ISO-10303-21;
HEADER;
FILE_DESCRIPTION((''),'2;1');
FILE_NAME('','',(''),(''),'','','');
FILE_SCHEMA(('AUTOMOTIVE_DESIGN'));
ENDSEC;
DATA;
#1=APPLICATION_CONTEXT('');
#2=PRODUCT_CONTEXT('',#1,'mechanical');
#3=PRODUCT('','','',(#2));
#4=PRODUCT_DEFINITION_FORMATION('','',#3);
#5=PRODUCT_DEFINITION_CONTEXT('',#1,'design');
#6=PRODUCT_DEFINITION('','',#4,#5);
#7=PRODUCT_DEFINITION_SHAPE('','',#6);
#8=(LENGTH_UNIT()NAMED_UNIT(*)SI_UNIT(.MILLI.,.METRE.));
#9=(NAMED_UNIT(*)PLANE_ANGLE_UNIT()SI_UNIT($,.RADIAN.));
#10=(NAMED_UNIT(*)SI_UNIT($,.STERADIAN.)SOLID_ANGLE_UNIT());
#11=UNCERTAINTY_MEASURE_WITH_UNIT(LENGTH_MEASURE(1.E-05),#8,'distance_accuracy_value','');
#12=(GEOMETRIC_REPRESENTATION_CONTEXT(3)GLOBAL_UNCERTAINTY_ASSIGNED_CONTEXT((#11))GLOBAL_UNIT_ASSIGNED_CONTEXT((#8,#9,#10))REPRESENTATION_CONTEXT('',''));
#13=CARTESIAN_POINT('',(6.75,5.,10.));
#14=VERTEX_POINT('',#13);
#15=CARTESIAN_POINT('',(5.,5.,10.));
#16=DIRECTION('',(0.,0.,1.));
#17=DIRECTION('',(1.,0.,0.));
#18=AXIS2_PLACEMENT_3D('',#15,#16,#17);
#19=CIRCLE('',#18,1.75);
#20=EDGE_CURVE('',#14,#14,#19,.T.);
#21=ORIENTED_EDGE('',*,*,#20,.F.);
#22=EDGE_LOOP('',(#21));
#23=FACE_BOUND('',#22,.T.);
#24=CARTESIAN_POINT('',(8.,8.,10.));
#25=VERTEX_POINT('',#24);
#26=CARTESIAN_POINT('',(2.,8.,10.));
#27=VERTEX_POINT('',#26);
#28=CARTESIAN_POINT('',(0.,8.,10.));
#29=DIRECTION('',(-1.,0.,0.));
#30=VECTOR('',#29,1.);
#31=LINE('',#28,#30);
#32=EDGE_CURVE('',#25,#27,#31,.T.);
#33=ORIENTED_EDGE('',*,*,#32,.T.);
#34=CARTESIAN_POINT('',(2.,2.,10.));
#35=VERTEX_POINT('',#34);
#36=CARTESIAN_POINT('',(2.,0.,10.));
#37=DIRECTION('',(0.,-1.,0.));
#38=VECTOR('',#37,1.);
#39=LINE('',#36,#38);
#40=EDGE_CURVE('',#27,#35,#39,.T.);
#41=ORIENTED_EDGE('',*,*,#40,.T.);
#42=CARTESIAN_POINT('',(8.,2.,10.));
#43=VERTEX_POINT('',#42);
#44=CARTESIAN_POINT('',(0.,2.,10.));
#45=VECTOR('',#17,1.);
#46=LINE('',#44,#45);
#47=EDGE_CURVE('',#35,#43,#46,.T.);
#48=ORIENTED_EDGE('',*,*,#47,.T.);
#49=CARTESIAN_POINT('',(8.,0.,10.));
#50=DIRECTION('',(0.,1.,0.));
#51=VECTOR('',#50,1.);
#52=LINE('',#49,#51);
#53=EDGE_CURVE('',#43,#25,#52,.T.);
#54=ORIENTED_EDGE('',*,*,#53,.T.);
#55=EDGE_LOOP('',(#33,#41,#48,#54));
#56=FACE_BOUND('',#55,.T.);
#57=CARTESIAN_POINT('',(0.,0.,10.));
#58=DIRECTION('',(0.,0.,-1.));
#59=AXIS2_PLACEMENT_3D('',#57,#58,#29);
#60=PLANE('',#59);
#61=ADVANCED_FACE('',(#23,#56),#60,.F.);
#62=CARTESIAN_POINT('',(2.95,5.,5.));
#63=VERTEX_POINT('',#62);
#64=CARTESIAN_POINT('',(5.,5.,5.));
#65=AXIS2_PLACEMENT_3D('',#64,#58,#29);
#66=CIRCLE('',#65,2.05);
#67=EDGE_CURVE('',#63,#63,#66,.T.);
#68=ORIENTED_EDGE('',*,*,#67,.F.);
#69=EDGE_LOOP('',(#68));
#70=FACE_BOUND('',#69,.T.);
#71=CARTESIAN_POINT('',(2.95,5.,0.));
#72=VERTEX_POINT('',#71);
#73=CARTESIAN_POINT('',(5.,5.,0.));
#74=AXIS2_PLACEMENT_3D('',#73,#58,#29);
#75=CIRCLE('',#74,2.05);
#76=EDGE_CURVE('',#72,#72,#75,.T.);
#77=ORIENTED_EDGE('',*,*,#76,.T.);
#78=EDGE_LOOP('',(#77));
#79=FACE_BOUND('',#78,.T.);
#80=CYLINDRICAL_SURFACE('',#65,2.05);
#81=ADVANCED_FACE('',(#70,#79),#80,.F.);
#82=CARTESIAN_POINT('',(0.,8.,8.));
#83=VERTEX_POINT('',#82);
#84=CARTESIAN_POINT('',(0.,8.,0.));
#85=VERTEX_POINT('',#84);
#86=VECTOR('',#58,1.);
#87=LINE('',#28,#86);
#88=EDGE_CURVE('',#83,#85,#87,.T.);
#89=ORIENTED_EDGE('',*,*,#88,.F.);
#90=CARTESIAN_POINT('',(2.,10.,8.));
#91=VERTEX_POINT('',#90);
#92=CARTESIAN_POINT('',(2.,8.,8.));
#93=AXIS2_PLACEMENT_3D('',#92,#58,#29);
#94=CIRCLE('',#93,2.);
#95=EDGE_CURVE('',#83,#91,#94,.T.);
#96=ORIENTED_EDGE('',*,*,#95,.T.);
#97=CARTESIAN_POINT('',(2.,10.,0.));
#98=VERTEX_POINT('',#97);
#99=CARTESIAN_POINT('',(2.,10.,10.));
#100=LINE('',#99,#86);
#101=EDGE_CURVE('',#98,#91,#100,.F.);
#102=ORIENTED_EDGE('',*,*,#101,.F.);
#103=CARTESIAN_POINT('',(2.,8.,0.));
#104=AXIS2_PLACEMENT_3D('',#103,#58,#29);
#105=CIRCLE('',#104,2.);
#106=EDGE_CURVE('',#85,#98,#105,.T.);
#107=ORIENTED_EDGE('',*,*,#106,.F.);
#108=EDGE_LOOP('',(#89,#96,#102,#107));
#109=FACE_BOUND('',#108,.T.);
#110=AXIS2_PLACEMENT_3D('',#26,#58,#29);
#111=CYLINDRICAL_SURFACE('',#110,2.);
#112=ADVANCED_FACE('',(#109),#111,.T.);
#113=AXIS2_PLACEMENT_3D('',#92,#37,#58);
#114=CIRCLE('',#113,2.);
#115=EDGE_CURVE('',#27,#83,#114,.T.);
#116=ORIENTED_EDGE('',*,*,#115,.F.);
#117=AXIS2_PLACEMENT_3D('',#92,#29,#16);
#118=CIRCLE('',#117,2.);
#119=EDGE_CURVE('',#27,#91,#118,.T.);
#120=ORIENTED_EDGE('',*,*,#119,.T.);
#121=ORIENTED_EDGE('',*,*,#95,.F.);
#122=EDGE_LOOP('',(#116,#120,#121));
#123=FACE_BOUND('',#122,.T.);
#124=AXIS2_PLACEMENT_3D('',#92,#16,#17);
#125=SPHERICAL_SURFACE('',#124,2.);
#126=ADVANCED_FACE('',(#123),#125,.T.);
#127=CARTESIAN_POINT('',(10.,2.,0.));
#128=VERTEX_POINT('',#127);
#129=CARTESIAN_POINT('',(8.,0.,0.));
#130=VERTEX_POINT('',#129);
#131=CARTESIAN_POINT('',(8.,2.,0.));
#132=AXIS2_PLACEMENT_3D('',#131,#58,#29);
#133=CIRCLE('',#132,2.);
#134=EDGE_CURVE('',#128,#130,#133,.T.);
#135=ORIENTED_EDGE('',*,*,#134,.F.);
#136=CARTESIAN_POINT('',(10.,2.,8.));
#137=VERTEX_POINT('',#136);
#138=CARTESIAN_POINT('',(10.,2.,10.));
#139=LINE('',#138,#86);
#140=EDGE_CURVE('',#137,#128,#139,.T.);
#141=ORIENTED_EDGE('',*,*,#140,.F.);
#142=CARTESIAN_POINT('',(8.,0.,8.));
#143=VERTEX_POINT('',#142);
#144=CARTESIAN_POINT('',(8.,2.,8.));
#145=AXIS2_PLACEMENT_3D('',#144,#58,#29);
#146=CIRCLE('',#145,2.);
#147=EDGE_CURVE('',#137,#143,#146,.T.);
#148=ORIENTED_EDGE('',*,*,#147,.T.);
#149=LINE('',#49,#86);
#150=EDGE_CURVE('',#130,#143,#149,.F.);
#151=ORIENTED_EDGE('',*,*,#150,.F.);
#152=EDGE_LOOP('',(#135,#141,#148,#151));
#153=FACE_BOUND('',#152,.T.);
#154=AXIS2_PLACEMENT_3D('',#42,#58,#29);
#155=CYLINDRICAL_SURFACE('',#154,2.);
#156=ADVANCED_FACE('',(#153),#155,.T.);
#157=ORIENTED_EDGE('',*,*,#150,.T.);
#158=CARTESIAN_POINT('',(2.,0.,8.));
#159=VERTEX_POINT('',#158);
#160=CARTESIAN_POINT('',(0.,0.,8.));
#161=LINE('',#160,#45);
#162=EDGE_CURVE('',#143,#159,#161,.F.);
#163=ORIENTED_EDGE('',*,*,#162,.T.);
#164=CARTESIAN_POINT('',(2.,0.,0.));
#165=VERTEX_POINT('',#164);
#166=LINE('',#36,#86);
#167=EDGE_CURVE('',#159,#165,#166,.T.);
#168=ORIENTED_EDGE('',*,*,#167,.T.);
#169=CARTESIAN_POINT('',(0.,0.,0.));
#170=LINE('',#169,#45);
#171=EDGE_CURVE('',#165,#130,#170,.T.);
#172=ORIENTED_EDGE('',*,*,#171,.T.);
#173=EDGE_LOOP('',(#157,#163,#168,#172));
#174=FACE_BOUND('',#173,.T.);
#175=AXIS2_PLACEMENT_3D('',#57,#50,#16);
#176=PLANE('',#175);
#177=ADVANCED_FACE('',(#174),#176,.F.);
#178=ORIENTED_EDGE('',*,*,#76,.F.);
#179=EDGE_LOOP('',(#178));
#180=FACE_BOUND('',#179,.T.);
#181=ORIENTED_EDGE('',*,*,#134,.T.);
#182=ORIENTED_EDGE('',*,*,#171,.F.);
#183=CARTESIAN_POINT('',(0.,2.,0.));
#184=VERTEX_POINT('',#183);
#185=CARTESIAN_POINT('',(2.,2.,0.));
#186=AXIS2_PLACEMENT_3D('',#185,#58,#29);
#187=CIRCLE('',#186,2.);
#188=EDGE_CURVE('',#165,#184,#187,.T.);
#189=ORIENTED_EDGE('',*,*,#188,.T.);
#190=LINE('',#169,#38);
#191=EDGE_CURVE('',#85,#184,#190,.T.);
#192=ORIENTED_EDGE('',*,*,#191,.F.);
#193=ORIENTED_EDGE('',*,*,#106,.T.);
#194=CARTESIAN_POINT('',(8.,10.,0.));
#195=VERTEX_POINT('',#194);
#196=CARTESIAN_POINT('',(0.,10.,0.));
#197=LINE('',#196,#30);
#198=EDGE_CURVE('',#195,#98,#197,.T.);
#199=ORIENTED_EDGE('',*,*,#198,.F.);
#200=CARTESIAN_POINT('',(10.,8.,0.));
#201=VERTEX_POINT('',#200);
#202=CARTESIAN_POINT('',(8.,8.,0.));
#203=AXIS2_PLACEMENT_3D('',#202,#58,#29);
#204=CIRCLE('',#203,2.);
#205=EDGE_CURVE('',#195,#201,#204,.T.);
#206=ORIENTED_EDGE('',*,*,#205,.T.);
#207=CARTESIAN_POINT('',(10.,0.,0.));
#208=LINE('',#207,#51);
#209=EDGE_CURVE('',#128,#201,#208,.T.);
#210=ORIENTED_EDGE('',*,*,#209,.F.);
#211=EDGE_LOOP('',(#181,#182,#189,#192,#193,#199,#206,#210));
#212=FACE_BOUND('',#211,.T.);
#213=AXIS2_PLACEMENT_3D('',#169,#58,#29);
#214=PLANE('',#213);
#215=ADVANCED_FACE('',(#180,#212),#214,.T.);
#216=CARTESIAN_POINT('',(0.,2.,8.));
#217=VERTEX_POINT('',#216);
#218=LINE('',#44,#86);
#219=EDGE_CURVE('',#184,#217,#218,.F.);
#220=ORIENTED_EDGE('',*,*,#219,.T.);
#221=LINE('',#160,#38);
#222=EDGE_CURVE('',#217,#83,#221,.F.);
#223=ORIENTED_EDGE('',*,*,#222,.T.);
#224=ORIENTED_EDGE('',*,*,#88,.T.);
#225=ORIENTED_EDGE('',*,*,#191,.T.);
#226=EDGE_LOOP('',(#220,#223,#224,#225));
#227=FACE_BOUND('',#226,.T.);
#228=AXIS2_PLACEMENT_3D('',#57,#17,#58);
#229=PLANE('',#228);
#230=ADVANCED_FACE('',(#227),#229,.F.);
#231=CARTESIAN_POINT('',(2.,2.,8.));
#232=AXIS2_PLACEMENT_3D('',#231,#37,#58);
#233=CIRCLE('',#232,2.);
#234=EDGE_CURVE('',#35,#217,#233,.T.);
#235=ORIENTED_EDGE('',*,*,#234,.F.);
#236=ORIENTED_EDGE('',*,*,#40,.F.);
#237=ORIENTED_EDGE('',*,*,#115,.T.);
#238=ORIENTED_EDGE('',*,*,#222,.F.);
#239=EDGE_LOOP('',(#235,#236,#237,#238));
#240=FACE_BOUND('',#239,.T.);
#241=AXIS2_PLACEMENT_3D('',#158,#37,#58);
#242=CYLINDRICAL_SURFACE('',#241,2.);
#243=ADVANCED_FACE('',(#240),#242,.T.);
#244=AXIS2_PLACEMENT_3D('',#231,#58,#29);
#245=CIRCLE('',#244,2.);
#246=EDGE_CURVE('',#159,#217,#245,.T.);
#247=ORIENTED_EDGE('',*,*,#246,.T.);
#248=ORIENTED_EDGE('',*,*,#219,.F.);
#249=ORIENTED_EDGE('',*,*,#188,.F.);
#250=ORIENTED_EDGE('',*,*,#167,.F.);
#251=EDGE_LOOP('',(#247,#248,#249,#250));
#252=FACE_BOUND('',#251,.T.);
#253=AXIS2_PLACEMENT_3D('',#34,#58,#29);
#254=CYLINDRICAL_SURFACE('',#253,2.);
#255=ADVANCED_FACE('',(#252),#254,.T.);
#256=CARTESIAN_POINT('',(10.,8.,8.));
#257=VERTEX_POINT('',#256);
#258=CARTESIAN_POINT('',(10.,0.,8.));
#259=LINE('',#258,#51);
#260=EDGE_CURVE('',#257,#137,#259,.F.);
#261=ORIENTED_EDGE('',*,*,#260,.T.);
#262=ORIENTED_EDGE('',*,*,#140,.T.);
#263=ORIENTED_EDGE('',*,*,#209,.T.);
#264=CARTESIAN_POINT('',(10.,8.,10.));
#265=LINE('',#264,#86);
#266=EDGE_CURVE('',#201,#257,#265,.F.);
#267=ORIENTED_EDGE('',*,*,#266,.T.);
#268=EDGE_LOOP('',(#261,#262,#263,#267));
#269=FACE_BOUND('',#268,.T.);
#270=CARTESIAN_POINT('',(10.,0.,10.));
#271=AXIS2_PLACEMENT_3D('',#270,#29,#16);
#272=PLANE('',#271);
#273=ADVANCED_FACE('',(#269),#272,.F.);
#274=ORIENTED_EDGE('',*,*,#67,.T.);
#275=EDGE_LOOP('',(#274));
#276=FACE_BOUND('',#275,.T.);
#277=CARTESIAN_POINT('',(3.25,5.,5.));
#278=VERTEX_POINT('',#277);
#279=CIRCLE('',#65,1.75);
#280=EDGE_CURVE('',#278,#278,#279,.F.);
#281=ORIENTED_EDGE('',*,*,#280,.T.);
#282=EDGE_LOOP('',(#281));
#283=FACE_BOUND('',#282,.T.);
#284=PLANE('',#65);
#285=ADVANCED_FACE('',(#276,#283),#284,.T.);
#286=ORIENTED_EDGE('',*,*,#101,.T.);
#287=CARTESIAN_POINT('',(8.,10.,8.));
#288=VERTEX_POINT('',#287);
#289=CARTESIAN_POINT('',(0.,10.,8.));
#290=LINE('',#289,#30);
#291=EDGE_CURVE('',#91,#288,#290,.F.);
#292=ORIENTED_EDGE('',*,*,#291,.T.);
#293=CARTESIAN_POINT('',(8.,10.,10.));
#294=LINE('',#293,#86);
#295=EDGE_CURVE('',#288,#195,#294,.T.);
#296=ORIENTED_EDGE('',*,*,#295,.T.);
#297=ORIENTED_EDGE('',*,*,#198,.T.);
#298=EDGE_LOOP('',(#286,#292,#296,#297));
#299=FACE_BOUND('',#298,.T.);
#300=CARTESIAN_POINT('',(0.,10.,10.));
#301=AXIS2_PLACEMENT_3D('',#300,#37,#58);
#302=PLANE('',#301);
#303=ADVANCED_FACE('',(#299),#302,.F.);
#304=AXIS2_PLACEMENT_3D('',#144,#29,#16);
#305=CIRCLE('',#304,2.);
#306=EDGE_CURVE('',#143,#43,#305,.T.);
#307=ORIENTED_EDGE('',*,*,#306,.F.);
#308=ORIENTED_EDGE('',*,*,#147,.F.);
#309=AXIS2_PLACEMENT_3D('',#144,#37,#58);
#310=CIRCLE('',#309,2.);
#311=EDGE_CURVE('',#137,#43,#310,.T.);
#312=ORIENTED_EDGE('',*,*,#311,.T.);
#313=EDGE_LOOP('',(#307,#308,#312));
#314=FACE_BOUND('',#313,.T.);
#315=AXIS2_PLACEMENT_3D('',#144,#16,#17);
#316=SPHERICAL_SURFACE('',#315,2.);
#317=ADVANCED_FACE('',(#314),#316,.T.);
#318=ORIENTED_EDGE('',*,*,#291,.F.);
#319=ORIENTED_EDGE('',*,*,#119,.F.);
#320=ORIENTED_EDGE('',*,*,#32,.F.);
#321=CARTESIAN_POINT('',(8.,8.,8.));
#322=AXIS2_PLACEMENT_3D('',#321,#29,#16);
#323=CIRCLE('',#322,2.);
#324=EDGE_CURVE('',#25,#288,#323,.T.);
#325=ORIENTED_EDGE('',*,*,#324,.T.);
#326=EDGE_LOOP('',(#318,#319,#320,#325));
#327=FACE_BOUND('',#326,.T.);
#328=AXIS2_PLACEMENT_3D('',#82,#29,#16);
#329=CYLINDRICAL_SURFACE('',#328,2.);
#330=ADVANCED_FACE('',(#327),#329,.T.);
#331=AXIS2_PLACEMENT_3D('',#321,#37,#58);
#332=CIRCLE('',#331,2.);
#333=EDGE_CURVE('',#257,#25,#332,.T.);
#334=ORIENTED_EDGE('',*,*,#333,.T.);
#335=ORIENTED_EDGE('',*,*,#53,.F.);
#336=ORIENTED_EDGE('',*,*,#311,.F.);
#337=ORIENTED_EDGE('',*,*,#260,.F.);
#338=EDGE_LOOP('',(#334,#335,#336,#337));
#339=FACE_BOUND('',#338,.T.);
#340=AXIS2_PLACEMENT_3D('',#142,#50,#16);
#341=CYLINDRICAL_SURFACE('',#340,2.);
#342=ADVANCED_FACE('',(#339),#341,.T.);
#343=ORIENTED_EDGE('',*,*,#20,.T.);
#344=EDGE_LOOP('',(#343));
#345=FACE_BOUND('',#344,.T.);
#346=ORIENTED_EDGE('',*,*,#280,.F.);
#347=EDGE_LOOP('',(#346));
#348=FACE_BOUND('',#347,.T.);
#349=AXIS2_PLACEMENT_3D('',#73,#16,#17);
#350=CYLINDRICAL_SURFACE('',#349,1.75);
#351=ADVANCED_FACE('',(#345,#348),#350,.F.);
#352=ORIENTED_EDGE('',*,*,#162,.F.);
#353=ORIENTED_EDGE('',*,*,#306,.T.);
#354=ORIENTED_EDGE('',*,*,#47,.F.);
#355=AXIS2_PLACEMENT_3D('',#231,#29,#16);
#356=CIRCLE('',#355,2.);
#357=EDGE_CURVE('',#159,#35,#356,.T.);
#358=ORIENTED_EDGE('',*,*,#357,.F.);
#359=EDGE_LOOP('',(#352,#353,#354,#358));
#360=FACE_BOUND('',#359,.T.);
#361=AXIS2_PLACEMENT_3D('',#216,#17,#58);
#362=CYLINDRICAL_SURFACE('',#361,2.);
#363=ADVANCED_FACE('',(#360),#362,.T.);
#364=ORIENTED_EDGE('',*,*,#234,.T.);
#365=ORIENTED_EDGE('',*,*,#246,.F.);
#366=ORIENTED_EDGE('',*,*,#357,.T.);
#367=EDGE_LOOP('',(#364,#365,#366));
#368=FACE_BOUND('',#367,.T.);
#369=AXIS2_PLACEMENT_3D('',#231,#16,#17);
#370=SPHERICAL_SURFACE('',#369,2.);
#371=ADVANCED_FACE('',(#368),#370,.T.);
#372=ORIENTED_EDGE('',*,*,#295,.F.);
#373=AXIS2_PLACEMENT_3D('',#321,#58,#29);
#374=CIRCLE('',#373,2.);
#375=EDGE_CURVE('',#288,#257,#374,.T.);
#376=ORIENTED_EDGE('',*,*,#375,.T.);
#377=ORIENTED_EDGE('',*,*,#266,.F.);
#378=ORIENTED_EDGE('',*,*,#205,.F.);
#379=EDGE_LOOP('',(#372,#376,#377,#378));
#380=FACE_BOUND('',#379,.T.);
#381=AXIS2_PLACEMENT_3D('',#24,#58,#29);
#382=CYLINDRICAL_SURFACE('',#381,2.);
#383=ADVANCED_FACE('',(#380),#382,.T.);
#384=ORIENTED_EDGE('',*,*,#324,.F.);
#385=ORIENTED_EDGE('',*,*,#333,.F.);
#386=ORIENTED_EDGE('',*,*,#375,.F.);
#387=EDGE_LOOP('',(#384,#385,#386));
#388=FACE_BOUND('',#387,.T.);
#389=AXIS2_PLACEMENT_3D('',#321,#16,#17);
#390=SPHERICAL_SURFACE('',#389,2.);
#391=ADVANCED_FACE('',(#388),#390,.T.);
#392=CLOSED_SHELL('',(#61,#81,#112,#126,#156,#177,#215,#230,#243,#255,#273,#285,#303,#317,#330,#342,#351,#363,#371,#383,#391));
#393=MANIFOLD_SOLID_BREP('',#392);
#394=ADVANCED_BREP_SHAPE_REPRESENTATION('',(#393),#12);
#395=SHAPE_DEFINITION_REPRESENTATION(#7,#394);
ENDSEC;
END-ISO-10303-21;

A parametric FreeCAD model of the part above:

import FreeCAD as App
import Part
import Sketcher
from FreeCAD import Vector
Q = App.Units.Quantity


def edges_at(feature, points):
    """Names of the edges that pass closest to the given points."""
    edges = feature.Shape.Edges
    near = lambda p: min(range(len(edges)), key=lambda i: edges[i].distToShape(Part.Vertex(*p))[0])
    return sorted({f"Edge{near(p) + 1}" for p in points})

doc = App.newDocument("Part")
params = doc.addObject("Spreadsheet::Sheet", "Params")
for row, (alias, value) in enumerate([
    ("sketch1_width", "10 mm"),
    ("pad1_length", "10 mm"),
    ("sketch2_diameter", "3.5 mm"),
    ("sketch3_diameter", "4.1 mm"),
    ("pocket2_length", "5 mm"),
    ("fillet_radius", "2 mm"),
    ("fillet2_radius", "2 mm"),
], start=1):
    params.set(f"A{row}", alias)
    params.set(f"B{row}", "=" + value)
    params.setAlias(f"B{row}", alias)

body = doc.addObject("PartDesign::Body", "Body")

sketch1 = body.newObject("Sketcher::SketchObject", "Sketch")
sketch1.AttachmentSupport = (doc.getObject("XY_Plane"), [""])
sketch1.MapMode = "FlatFace"
sketch1.addGeometry([
    Part.LineSegment(Vector(0, 10, 0), Vector(0, 0, 0)),
    Part.LineSegment(Vector(0, 0, 0), Vector(10, 0, 0)),
    Part.LineSegment(Vector(10, 0, 0), Vector(10, 10, 0)),
    Part.LineSegment(Vector(10, 10, 0), Vector(0, 10, 0)),
], False)
sketch1.addConstraint([
    Sketcher.Constraint("Coincident", 0, 2, 1, 1),
    Sketcher.Constraint("Coincident", 1, 2, 2, 1),
    Sketcher.Constraint("Coincident", 2, 2, 3, 1),
    Sketcher.Constraint("Coincident", 3, 2, 0, 1),
    Sketcher.Constraint("Vertical", 0),
    Sketcher.Constraint("Horizontal", 1),
    Sketcher.Constraint("Vertical", 2),
    Sketcher.Constraint("Horizontal", 3),
    Sketcher.Constraint("Coincident", 0, 2, -1, 1),
    Sketcher.Constraint("Equal", 3, 0),
    Sketcher.Constraint("DistanceX", 1, 1, 1, 2, Q("10 mm")),
])
sketch1.setExpression("Constraints[10]", "Params.sketch1_width")
pad1 = body.newObject("PartDesign::Pad", "Pad")
pad1.Profile = sketch1
pad1.setExpression("Length", "Params.pad1_length")

sketch2 = body.newObject("Sketcher::SketchObject", "Sketch001")
sketch2.AttachmentSupport = (doc.getObject("XY_Plane"), [""])
sketch2.MapMode = "FlatFace"
sketch2.AttachmentOffset = App.Placement(Vector(0, 0, 10), App.Rotation())
sketch2.addGeometry(Part.Circle(Vector(5, 5, 0), Vector(0, 0, 1), 1.8), False)
sketch2.addConstraint([
    Sketcher.Constraint("Diameter", 0, Q("3.5 mm")),
    Sketcher.Constraint("DistanceX", -1, 1, 0, 3, Q("5 mm")),
    Sketcher.Constraint("DistanceY", -1, 1, 0, 3, Q("5 mm")),
])
sketch2.setExpression("Constraints[0]", "Params.sketch2_diameter")
pocket1 = body.newObject("PartDesign::Pocket", "Pocket")
pocket1.Profile = sketch2
pocket1.Type = "ThroughAll"

sketch3 = body.newObject("Sketcher::SketchObject", "Sketch002")
sketch3.AttachmentSupport = (doc.getObject("XY_Plane"), [""])
sketch3.MapMode = "FlatFace"
sketch3.addGeometry(Part.Circle(Vector(5, 5, 0), Vector(0, 0, 1), 2), False)
sketch3.addConstraint([
    Sketcher.Constraint("Diameter", 0, Q("4.1 mm")),
    Sketcher.Constraint("DistanceX", -1, 1, 0, 3, Q("5 mm")),
    Sketcher.Constraint("DistanceY", -1, 1, 0, 3, Q("5 mm")),
])
sketch3.setExpression("Constraints[0]", "Params.sketch3_diameter")
pocket2 = body.newObject("PartDesign::Pocket", "Pocket001")
pocket2.Profile = sketch3
pocket2.setExpression("Length", "Params.pocket2_length")
pocket2.Reversed = True
doc.recompute()

fillet = body.newObject("PartDesign::Fillet", "Fillet")
fillet.Base = (pocket2, edges_at(pocket2, [
    (0, 10, 5),
    (10, 10, 5),
    (10, 0, 5),
    (0, 0, 5),
]))
fillet.setExpression("Radius", "Params.fillet_radius")
doc.recompute()

fillet2 = body.newObject("PartDesign::Fillet", "Fillet001")
fillet2.Base = (fillet, edges_at(fillet, [
    (5, 10, 10),
    (10, 5, 10),
    (0, 5, 10),
    (5, 0, 10),
    (9.414, 0.586, 10),
    (0.586, 0.586, 10),
    (0.586, 9.414, 10),
    (9.414, 9.414, 10),
]))
fillet2.setExpression("Radius", "Params.fillet2_radius")

doc.recompute()
